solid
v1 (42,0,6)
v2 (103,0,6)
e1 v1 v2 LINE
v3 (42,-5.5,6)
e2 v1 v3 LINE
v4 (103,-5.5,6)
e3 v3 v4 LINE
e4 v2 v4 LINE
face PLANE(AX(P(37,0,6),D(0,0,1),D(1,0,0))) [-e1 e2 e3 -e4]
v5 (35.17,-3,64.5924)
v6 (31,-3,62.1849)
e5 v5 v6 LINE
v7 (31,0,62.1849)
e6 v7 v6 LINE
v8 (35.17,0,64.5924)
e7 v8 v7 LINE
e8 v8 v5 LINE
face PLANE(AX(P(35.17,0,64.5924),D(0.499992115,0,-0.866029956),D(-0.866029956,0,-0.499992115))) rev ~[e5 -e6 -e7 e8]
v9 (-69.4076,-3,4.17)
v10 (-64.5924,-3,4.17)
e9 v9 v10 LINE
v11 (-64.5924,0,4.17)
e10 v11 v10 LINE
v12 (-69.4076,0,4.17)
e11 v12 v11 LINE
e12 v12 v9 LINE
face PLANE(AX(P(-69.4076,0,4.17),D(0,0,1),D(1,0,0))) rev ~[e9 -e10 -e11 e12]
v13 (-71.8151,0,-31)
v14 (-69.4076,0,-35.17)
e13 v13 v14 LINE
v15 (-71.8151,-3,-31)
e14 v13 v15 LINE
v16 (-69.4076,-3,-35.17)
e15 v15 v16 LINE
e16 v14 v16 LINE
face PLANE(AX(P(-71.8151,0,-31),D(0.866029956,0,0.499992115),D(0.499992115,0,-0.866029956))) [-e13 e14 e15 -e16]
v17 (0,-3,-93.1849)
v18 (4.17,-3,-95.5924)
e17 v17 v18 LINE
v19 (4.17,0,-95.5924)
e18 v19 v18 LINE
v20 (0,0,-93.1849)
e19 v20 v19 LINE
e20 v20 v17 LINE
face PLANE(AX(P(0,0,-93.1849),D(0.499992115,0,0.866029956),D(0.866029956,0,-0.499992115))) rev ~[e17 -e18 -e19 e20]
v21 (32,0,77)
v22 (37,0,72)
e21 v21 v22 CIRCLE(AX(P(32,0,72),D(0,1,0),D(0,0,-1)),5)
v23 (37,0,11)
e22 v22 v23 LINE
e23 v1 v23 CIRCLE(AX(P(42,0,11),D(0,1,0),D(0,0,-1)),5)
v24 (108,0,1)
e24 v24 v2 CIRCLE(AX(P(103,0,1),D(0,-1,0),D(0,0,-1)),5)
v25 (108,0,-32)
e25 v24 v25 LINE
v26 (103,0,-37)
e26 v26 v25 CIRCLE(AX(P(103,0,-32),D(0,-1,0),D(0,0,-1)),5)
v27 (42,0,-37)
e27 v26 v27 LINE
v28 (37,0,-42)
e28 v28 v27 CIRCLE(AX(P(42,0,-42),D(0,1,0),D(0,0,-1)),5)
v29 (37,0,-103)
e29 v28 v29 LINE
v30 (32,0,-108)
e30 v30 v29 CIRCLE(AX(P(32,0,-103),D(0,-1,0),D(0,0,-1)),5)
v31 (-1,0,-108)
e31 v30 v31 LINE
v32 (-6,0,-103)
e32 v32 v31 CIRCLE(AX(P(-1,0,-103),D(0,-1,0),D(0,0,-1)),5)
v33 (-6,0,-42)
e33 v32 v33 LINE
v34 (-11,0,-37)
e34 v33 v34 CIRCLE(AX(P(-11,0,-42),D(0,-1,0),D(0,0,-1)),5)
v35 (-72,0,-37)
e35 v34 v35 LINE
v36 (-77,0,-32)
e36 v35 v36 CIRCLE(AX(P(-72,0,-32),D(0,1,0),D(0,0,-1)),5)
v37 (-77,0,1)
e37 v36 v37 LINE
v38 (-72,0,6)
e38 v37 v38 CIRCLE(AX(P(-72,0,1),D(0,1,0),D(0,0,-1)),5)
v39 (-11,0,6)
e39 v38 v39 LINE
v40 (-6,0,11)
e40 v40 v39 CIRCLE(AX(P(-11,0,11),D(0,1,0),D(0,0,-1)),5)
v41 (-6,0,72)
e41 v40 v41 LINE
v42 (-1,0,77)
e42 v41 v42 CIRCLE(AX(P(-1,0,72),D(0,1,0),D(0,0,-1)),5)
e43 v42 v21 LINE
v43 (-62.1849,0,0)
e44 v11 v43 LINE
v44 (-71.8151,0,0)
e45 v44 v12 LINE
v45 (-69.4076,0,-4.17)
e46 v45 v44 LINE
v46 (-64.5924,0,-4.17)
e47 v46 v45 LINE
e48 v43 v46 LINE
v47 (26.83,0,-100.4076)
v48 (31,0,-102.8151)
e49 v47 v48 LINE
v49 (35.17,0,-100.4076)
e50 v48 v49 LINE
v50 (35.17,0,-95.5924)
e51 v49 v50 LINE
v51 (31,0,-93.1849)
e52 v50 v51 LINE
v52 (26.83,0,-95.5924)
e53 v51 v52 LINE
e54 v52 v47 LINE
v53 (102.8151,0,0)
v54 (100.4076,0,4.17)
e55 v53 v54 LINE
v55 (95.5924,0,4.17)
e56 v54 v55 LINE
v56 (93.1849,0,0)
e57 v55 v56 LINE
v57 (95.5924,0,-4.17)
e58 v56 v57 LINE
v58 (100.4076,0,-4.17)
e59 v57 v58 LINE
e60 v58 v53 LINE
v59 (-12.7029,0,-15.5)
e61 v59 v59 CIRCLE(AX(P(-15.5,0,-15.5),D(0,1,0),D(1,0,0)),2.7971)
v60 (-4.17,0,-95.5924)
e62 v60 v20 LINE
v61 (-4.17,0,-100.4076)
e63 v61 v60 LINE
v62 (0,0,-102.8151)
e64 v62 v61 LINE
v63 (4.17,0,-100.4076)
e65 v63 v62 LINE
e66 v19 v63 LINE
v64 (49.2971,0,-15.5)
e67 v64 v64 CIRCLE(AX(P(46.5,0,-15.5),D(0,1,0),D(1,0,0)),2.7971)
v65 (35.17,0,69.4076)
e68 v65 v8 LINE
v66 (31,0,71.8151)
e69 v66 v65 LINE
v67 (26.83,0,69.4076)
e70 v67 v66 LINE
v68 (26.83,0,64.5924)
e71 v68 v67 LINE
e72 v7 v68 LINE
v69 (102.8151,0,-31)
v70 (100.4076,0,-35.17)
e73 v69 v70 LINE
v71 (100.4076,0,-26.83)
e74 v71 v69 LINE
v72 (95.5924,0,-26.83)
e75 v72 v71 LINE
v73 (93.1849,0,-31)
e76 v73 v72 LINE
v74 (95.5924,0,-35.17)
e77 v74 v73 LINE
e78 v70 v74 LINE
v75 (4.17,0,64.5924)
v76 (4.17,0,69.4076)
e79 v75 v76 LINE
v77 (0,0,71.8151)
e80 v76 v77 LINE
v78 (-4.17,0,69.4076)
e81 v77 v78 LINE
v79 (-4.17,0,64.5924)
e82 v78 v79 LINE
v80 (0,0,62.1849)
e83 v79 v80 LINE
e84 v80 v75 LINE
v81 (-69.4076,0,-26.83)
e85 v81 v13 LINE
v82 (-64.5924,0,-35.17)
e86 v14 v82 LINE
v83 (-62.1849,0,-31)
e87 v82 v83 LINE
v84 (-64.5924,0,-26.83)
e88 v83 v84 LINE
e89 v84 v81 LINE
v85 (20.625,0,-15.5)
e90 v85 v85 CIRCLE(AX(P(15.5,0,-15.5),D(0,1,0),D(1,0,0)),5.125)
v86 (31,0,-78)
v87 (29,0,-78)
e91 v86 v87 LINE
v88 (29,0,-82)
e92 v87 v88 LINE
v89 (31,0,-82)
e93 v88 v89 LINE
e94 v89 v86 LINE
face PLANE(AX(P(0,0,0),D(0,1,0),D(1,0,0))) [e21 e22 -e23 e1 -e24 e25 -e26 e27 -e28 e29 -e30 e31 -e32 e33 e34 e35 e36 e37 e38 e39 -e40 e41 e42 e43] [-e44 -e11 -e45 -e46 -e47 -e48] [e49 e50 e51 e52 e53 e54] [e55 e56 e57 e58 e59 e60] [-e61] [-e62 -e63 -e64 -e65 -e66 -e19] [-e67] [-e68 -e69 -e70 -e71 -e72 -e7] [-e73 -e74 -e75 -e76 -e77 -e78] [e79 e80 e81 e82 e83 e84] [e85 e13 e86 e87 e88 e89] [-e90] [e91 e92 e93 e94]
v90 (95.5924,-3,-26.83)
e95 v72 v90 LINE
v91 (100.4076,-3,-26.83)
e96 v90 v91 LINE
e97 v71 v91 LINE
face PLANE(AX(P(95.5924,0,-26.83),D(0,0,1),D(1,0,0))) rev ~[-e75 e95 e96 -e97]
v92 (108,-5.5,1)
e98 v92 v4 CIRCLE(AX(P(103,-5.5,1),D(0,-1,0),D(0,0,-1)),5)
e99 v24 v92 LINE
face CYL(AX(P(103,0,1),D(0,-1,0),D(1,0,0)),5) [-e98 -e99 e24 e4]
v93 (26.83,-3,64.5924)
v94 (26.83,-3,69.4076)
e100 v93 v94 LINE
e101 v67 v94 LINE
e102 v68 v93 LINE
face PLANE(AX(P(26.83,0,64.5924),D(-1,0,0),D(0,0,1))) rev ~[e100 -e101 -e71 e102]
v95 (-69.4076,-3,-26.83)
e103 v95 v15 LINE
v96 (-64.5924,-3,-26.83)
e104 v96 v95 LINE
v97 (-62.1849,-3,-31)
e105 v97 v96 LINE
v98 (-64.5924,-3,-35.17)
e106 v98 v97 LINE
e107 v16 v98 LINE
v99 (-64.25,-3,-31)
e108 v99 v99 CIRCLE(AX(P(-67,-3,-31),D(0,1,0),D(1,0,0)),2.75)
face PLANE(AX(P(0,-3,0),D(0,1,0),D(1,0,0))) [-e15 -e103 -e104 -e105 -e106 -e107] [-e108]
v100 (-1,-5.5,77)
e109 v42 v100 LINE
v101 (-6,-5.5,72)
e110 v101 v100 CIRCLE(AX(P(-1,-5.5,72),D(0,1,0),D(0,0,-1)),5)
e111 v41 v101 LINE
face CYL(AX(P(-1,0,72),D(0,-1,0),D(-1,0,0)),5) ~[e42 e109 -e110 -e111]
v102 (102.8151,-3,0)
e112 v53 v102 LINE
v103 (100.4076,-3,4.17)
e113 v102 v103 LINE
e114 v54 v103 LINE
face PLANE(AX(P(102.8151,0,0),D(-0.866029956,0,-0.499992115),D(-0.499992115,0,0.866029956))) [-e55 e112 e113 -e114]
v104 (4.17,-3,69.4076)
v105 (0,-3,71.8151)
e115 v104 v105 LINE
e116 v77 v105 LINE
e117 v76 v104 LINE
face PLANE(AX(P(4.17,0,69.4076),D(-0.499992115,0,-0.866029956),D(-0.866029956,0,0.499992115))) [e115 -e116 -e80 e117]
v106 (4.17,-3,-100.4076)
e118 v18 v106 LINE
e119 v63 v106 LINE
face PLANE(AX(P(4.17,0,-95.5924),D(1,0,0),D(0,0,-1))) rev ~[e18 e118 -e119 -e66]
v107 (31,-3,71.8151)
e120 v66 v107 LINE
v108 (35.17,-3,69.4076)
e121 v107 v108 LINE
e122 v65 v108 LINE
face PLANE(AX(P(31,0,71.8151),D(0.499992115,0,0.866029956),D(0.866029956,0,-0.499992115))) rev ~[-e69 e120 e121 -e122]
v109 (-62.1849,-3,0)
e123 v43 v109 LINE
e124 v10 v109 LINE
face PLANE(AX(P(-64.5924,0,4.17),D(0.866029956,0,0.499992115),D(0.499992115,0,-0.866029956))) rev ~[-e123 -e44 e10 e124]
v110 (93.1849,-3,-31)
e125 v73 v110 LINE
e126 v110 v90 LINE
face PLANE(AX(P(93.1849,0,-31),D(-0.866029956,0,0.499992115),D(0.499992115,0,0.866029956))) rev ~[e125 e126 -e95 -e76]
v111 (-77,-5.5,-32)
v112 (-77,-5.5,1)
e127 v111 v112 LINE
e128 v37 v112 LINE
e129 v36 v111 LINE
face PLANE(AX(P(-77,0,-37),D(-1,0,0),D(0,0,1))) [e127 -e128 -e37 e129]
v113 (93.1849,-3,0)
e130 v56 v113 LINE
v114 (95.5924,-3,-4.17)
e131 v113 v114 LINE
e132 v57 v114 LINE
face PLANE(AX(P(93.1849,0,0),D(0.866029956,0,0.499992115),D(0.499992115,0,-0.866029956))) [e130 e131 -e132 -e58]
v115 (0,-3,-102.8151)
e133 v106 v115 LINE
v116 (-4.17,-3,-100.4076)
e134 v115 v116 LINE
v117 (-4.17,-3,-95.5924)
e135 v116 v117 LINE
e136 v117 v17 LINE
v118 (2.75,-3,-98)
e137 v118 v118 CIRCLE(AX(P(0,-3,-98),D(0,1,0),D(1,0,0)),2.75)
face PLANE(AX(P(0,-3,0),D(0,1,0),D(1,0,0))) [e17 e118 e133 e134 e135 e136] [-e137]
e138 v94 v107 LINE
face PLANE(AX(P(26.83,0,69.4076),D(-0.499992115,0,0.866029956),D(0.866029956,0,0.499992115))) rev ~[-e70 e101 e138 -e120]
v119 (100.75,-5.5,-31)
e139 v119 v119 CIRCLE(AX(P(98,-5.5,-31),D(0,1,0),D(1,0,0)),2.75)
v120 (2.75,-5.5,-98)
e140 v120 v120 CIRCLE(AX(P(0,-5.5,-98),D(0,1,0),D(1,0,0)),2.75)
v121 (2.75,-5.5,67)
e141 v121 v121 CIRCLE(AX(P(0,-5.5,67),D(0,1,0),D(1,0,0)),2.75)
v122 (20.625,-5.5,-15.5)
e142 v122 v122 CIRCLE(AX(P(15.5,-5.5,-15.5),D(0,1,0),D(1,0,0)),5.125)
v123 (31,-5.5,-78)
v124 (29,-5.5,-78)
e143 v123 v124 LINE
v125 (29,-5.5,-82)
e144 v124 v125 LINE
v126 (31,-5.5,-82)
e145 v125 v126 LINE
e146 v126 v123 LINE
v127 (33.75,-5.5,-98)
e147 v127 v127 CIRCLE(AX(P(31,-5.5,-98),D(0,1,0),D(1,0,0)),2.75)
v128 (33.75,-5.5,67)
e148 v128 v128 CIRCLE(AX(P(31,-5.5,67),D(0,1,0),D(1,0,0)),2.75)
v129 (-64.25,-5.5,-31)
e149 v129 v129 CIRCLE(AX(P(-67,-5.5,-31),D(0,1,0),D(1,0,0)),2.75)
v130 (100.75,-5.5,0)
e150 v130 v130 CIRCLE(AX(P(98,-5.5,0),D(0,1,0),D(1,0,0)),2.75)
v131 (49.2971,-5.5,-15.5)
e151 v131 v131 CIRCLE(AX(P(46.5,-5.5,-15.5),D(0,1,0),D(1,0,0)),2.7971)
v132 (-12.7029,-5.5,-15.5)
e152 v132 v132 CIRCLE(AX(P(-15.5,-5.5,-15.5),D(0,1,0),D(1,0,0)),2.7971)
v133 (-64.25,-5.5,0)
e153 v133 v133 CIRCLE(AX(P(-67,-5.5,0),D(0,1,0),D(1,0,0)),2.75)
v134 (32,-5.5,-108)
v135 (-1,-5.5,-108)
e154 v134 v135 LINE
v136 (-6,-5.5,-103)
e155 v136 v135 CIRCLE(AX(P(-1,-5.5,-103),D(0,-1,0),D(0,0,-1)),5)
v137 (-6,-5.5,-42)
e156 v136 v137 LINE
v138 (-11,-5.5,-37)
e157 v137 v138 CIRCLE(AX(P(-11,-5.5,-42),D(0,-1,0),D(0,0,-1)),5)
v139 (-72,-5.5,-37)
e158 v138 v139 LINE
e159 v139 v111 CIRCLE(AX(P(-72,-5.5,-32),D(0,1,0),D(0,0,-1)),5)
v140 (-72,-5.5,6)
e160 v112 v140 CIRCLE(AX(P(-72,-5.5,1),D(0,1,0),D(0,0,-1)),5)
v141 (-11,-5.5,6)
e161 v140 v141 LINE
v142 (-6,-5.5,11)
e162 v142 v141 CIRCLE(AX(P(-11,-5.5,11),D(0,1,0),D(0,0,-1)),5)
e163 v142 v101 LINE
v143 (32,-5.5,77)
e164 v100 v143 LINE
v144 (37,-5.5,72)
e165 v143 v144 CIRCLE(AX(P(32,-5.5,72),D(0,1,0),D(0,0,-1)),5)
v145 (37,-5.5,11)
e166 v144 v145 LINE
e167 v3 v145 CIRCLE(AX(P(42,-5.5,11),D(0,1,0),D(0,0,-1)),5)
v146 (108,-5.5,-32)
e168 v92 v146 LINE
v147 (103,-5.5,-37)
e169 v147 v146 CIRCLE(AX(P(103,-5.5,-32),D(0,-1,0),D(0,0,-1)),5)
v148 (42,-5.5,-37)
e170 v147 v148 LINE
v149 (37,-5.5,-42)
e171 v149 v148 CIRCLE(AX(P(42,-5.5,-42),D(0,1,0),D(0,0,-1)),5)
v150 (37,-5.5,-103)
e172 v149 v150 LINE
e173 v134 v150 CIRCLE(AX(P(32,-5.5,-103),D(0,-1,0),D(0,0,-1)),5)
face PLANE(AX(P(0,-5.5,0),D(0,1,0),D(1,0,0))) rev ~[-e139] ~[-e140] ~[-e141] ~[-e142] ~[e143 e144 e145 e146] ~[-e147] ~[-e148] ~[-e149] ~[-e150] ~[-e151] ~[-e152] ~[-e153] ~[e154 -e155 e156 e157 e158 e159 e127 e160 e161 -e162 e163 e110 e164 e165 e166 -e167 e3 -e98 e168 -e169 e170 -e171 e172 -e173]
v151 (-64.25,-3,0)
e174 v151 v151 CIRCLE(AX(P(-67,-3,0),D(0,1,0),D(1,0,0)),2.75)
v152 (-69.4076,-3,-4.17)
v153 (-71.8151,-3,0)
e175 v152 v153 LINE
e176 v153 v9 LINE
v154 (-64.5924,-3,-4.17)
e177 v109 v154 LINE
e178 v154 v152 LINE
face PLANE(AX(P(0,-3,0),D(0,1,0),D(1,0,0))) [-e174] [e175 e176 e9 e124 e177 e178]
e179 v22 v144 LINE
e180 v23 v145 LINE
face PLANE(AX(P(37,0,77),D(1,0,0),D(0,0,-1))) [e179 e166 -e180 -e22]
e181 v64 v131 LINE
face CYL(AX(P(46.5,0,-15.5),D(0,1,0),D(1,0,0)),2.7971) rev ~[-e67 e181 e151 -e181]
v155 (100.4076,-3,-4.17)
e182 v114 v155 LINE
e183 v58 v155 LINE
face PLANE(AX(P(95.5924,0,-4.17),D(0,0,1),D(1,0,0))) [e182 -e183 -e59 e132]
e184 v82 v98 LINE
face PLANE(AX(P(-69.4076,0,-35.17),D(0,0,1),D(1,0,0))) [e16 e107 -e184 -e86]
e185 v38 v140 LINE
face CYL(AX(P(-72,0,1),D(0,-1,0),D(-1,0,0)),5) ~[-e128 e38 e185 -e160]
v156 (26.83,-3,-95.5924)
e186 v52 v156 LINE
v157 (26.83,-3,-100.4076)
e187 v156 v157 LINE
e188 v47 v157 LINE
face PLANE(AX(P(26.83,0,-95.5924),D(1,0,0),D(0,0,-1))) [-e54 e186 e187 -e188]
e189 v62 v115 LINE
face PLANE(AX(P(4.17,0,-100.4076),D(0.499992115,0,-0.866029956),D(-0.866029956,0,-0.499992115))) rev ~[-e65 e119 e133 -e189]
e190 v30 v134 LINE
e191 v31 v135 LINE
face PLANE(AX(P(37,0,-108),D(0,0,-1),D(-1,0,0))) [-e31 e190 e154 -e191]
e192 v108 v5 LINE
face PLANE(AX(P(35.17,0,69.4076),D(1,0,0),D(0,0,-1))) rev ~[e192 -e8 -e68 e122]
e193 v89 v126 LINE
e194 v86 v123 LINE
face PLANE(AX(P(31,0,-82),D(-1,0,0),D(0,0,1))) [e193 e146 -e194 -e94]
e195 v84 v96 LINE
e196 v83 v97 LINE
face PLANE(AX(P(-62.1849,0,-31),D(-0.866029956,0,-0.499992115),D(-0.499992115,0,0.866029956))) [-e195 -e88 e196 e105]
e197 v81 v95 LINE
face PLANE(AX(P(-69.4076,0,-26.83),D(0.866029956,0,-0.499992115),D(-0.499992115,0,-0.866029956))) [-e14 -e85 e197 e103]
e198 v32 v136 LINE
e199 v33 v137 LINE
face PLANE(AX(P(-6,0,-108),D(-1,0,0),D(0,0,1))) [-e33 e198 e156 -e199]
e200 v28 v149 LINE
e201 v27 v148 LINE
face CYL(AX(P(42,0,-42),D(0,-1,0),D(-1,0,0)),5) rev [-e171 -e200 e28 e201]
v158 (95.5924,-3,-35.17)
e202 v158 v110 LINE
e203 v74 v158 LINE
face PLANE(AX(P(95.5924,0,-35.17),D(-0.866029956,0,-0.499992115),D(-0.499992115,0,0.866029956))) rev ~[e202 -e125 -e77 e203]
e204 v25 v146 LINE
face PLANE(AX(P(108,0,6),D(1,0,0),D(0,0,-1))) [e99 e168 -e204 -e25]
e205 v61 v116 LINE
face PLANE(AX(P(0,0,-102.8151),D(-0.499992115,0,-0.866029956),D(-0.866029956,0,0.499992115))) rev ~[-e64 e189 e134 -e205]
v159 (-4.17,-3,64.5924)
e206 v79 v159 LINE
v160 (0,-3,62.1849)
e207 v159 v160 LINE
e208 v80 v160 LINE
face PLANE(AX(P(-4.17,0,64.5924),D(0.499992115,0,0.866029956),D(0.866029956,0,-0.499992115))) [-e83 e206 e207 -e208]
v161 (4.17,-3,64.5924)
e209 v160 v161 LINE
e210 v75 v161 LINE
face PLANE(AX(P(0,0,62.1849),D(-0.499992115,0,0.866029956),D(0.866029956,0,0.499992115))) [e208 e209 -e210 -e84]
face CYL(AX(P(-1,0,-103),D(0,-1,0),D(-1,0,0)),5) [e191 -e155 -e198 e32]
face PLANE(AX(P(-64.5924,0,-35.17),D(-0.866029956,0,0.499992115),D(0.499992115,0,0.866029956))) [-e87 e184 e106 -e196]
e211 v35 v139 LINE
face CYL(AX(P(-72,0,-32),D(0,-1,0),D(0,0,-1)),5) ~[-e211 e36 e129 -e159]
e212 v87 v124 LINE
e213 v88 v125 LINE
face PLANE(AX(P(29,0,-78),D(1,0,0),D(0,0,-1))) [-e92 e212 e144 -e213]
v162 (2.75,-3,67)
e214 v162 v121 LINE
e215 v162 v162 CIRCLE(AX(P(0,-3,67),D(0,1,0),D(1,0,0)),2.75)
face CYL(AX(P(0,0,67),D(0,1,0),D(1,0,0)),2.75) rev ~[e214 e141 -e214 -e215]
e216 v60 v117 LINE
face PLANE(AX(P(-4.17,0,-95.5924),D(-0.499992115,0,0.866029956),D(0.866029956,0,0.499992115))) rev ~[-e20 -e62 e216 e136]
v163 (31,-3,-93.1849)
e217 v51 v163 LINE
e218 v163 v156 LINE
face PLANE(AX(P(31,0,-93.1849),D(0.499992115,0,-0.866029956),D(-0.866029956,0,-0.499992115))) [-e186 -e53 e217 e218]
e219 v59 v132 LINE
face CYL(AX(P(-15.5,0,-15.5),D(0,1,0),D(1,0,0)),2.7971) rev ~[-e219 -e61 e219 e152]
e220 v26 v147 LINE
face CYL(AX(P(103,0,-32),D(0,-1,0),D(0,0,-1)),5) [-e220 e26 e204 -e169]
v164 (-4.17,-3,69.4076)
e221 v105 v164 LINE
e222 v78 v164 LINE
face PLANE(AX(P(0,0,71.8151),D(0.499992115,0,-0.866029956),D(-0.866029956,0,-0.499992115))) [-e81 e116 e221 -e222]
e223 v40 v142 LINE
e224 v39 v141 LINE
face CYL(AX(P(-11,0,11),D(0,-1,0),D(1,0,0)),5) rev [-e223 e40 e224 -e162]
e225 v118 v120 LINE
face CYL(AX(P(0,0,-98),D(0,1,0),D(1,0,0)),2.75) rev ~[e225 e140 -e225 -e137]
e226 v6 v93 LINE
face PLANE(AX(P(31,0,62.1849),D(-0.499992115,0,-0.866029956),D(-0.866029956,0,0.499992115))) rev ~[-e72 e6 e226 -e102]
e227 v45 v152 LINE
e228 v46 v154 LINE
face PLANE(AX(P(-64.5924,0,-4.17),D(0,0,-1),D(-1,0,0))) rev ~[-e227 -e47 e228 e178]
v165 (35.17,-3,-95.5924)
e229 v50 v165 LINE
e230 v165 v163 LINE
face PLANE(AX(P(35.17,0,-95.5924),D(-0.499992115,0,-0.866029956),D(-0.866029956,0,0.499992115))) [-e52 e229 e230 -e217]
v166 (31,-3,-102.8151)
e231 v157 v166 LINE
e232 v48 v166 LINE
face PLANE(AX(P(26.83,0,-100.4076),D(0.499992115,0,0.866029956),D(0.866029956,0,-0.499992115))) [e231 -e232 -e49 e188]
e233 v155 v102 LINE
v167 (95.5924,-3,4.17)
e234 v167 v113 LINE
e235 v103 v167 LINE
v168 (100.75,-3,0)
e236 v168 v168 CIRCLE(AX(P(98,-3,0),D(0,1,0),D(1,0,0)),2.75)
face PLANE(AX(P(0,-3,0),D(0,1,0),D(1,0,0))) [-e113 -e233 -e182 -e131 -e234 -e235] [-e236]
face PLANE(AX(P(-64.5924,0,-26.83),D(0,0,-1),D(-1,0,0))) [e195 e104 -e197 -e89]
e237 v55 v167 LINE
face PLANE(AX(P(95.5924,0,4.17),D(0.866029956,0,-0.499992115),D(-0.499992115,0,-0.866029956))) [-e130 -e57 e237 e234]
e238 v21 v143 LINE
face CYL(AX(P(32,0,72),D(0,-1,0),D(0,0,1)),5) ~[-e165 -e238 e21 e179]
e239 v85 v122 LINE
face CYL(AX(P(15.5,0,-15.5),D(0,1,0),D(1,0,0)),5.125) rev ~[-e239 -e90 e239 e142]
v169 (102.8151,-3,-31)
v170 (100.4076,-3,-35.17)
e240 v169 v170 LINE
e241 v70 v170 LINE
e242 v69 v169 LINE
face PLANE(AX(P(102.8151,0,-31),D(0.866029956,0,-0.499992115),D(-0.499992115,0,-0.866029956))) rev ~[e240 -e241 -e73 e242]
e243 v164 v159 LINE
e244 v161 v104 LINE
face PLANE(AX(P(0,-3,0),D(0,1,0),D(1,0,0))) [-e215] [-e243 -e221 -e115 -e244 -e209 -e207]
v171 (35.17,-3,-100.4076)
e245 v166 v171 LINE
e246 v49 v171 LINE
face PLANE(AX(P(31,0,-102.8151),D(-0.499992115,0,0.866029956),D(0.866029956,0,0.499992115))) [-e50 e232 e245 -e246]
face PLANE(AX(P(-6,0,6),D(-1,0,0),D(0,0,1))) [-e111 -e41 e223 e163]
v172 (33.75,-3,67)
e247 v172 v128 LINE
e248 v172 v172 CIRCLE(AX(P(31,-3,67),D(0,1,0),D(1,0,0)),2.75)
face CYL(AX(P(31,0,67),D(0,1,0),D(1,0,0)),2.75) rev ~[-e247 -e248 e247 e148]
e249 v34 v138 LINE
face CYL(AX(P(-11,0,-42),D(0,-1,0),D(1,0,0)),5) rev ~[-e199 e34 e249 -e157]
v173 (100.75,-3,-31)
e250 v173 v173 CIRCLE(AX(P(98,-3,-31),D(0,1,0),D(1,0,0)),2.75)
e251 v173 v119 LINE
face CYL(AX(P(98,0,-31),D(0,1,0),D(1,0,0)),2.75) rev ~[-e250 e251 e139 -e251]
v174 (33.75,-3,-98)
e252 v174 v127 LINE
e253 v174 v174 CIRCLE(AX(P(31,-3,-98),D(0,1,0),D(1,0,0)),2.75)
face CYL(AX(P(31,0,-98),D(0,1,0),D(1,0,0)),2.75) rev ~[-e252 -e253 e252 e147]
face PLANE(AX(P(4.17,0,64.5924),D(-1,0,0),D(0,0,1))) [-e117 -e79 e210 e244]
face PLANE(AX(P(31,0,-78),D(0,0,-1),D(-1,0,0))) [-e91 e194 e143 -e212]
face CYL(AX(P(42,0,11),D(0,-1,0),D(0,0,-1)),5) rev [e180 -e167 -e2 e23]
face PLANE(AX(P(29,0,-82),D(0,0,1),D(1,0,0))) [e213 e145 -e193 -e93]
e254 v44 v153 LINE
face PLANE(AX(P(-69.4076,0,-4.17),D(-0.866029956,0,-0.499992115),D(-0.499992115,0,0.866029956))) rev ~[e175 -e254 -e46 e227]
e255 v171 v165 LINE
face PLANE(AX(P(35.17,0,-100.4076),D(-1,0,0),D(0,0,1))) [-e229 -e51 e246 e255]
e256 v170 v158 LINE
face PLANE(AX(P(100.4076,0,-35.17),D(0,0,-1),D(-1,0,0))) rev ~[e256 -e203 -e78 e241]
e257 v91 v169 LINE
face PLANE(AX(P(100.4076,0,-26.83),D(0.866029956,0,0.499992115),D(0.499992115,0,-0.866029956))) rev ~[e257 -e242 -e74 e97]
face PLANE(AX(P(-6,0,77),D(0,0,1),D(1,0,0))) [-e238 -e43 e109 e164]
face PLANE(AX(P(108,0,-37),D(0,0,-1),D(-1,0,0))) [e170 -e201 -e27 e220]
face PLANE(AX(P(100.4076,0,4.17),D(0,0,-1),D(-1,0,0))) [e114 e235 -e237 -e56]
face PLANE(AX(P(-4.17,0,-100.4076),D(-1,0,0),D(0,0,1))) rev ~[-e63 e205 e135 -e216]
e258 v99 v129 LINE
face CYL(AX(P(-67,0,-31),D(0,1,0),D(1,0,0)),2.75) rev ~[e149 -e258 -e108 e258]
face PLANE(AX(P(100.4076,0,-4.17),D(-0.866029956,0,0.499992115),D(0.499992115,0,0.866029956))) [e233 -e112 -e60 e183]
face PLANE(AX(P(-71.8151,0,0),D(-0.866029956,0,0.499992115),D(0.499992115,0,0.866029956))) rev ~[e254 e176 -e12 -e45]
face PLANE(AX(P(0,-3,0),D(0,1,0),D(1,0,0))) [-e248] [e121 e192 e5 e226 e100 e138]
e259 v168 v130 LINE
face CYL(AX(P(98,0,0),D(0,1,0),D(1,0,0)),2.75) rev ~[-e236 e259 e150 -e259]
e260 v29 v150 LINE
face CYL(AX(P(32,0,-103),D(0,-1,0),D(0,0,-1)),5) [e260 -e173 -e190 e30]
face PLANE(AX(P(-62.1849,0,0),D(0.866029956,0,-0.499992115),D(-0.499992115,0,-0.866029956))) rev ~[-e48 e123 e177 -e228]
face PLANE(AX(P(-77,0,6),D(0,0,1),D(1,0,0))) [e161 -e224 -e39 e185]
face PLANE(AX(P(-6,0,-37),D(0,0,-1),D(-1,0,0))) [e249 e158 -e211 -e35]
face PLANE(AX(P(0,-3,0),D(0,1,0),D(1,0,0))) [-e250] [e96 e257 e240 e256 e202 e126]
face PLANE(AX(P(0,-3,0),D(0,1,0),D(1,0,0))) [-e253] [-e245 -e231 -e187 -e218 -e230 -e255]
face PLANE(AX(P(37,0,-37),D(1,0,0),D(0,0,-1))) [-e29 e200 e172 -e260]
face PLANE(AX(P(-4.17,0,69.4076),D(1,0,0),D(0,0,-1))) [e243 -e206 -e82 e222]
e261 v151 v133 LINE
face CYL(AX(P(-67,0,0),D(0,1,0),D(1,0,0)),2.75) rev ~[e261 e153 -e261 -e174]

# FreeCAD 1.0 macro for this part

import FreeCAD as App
import Part
import Sketcher
from FreeCAD import Vector
Q = App.Units.Quantity


def edges_at(feature, points):
    """Names of the edges that pass closest to the given points."""
    edges = feature.Shape.Edges
    near = lambda p: min(range(len(edges)), key=lambda i: edges[i].distToShape(Part.Vertex(*p))[0])
    return sorted({f"Edge{near(p) + 1}" for p in points})

doc = App.newDocument("Part")
body = doc.addObject("PartDesign::Body", "Body")

# Sketch on XZ plane
sketch1 = body.newObject("Sketcher::SketchObject", "Sketch")
sketch1.AttachmentSupport = (doc.getObject("XZ_Plane"), [""])
sketch1.MapMode = "FlatFace"
sketch1.addGeometry(Part.LineSegment(Vector(-6, -108, 0), Vector(-6, -37, 0)), False)
sketch1.addGeometry(Part.LineSegment(Vector(-6, -37, 0), Vector(-77, -37, 0)), False)
sketch1.addGeometry(Part.LineSegment(Vector(-77, -37, 0), Vector(-77, 6, 0)), False)
sketch1.addGeometry(Part.LineSegment(Vector(-77, 6, 0), Vector(-6, 6, 0)), False)
sketch1.addGeometry(Part.LineSegment(Vector(-6, 6, 0), Vector(-6, 77, 0)), False)
sketch1.addGeometry(Part.LineSegment(Vector(-6, 77, 0), Vector(37, 77, 0)), False)
sketch1.addGeometry(Part.LineSegment(Vector(37, 77, 0), Vector(37, 6, 0)), False)
sketch1.addGeometry(Part.LineSegment(Vector(37, 6, 0), Vector(108, 6, 0)), False)
sketch1.addGeometry(Part.LineSegment(Vector(108, 6, 0), Vector(108, -37, 0)), False)
sketch1.addGeometry(Part.LineSegment(Vector(108, -37, 0), Vector(37, -37, 0)), False)
sketch1.addGeometry(Part.LineSegment(Vector(37, -37, 0), Vector(37, -108, 0)), False)
sketch1.addGeometry(Part.LineSegment(Vector(37, -108, 0), Vector(-6, -108, 0)), False)
sketch1.addGeometry(Part.Circle(Vector(15.5, -15.5, 0), Vector(0, 0, 1), 5.1), False)
sketch1.addGeometry(Part.Circle(Vector(46.5, -15.5, 0), Vector(0, 0, 1), 2.8), False)
sketch1.addGeometry(Part.Circle(Vector(-15.5, -15.5, 0), Vector(0, 0, 1), 2.8), False)
sketch1.addGeometry(Part.Circle(Vector(31, -98, 0), Vector(0, 0, 1), 2.8), False)
sketch1.addGeometry(Part.Circle(Vector(0, -98, 0), Vector(0, 0, 1), 2.8), False)
sketch1.addGeometry(Part.Circle(Vector(98, -31, 0), Vector(0, 0, 1), 2.8), False)
sketch1.addGeometry(Part.Circle(Vector(98, 0, 0), Vector(0, 0, 1), 2.8), False)
sketch1.addGeometry(Part.Circle(Vector(31, 67, 0), Vector(0, 0, 1), 2.8), False)
sketch1.addGeometry(Part.Circle(Vector(0, 67, 0), Vector(0, 0, 1), 2.8), False)
sketch1.addGeometry(Part.Circle(Vector(-67, 0, 0), Vector(0, 0, 1), 2.8), False)
sketch1.addGeometry(Part.Circle(Vector(-67, -31, 0), Vector(0, 0, 1), 2.8), False)
sketch1.addConstraint(Sketcher.Constraint("Coincident", 0, 2, 1, 1))
sketch1.addConstraint(Sketcher.Constraint("Coincident", 1, 2, 2, 1))
sketch1.addConstraint(Sketcher.Constraint("Coincident", 2, 2, 3, 1))
sketch1.addConstraint(Sketcher.Constraint("Coincident", 3, 2, 4, 1))
sketch1.addConstraint(Sketcher.Constraint("Coincident", 4, 2, 5, 1))
sketch1.addConstraint(Sketcher.Constraint("Coincident", 5, 2, 6, 1))
sketch1.addConstraint(Sketcher.Constraint("Coincident", 6, 2, 7, 1))
sketch1.addConstraint(Sketcher.Constraint("Coincident", 7, 2, 8, 1))
sketch1.addConstraint(Sketcher.Constraint("Coincident", 8, 2, 9, 1))
sketch1.addConstraint(Sketcher.Constraint("Coincident", 9, 2, 10, 1))
sketch1.addConstraint(Sketcher.Constraint("Coincident", 10, 2, 11, 1))
sketch1.addConstraint(Sketcher.Constraint("Coincident", 11, 2, 0, 1))
sketch1.addConstraint(Sketcher.Constraint("Vertical", 0))
sketch1.addConstraint(Sketcher.Constraint("Horizontal", 1))
sketch1.addConstraint(Sketcher.Constraint("Vertical", 2))
sketch1.addConstraint(Sketcher.Constraint("Horizontal", 3))
sketch1.addConstraint(Sketcher.Constraint("Vertical", 4))
sketch1.addConstraint(Sketcher.Constraint("Horizontal", 5))
sketch1.addConstraint(Sketcher.Constraint("Vertical", 6))
sketch1.addConstraint(Sketcher.Constraint("Horizontal", 7))
sketch1.addConstraint(Sketcher.Constraint("Vertical", 8))
sketch1.addConstraint(Sketcher.Constraint("Horizontal", 9))
sketch1.addConstraint(Sketcher.Constraint("Vertical", 10))
sketch1.addConstraint(Sketcher.Constraint("Horizontal", 11))
sketch1.addConstraint(Sketcher.Constraint("Equal", 13, 14))
sketch1.addConstraint(Sketcher.Constraint("Equal", 15, 16))
sketch1.addConstraint(Sketcher.Constraint("Equal", 16, 17))
sketch1.addConstraint(Sketcher.Constraint("Equal", 17, 18))
sketch1.addConstraint(Sketcher.Constraint("Equal", 18, 19))
sketch1.addConstraint(Sketcher.Constraint("Equal", 19, 20))
sketch1.addConstraint(Sketcher.Constraint("Equal", 20, 21))
sketch1.addConstraint(Sketcher.Constraint("Equal", 21, 22))
sketch1.addConstraint(Sketcher.Constraint("Symmetric", 12, 3, 14, 3, -2))
sketch1.addConstraint(Sketcher.Constraint("PointOnObject", 16, 3, -2))
sketch1.addConstraint(Sketcher.Constraint("PointOnObject", 18, 3, -1))
sketch1.addConstraint(Sketcher.Constraint("PointOnObject", 20, 3, -2))
sketch1.addConstraint(Sketcher.Constraint("PointOnObject", 21, 3, -1))
sketch1.addConstraint(Sketcher.Constraint("Horizontal", 12, 3, 13, 3))
sketch1.addConstraint(Sketcher.Constraint("Horizontal", 15, 3, 16, 3))
sketch1.addConstraint(Sketcher.Constraint("Horizontal", 19, 3, 20, 3))
sketch1.addConstraint(Sketcher.Constraint("Horizontal", 17, 3, 22, 3))
sketch1.addConstraint(Sketcher.Constraint("Horizontal", 3, 2, 6, 2))
sketch1.addConstraint(Sketcher.Constraint("Horizontal", 1, 2, 8, 2))
sketch1.addConstraint(Sketcher.Constraint("Vertical", 17, 3, 18, 3))
sketch1.addConstraint(Sketcher.Constraint("Vertical", 15, 3, 19, 3))
sketch1.addConstraint(Sketcher.Constraint("Vertical", 21, 3, 22, 3))
sketch1.addConstraint(Sketcher.Constraint("Vertical", 0, 2, 3, 2))
sketch1.addConstraint(Sketcher.Constraint("Vertical", 6, 2, 9, 2))
sketch1.addConstraint(Sketcher.Constraint("Equal", 3, 7))
sketch1.addConstraint(Sketcher.Constraint("Equal", 9, 0))
sketch1.addConstraint(Sketcher.Constraint("Equal", 11, 2))
sketch1.addConstraint(Sketcher.Constraint("Equal", 0, 4))
sketch1.addConstraint(Sketcher.Constraint("Diameter", 15, 5.5))
sketch1.addConstraint(Sketcher.Constraint("Diameter", 12, 10.25))
sketch1.addConstraint(Sketcher.Constraint("DistanceX", 5, 1, 5, 2, 43.0))
sketch1.addConstraint(Sketcher.Constraint("DistanceX", -1, 1, 15, 3, 31.0))
sketch1.addConstraint(Sketcher.Constraint("DistanceY", 17, 3, -1, 1, 31.0))
sketch1.addConstraint(Sketcher.Constraint("DistanceX", 0, 2, -1, 1, 6.0))
sketch1.addConstraint(Sketcher.Constraint("DistanceY", -1, 1, 2, 2, 6.0))
sketch1.addConstraint(Sketcher.Constraint("DistanceX", 12, 3, 13, 3, 31.0))
sketch1.addConstraint(Sketcher.Constraint("DistanceX", 14, 3, 12, 3, 31.0))
sketch1.addConstraint(Sketcher.Constraint("DistanceX", 1, 2, 22, 3, 10.0))
sketch1.addConstraint(Sketcher.Constraint("DistanceY", 20, 3, 4, 2, 10.0))
sketch1.addConstraint(Sketcher.Constraint("DistanceX", 18, 3, 7, 2, 10.0))
sketch1.addConstraint(Sketcher.Constraint("DistanceY", 10, 2, 15, 3, 10.0))
sketch1.addConstraint(Sketcher.Constraint("DistanceY", 15, 3, 12, 3, 82.5))
sketch1.addConstraint(Sketcher.Constraint("DistanceX", 12, 3, 17, 3, 82.5))
sketch1.addConstraint(Sketcher.Constraint("Diameter", 13, 5.5942))
pad1 = body.newObject("PartDesign::Pad", "Pad")
pad1.Profile = sketch1
pad1.Length = 5.5
doc.recompute()

fillet = body.newObject("PartDesign::Fillet", "Fillet")
fillet.Base = (pad1, edges_at(pad1, [
    (-6, -2.75, -37),
    (-6, -2.75, 6),
    (37, -2.75, 6),
    (37, -2.75, -37),
]))
fillet.Radius = 5
doc.recompute()

fillet2 = body.newObject("PartDesign::Fillet", "Fillet001")
fillet2.Base = (fillet, edges_at(fillet, [
    (37, -2.75, -108),
    (-6, -2.75, -108),
    (108, -2.75, 6),
    (108, -2.75, -37),
    (37, -2.75, 77),
    (-6, -2.75, 77),
    (-77, -2.75, 6),
    (-77, -2.75, -37),
]))
fillet2.Radius = 5

# Sketch on XZ plane
sketch2 = body.newObject("Sketcher::SketchObject", "Sketch001")
sketch2.AttachmentSupport = (doc.getObject("XZ_Plane"), [""])
sketch2.MapMode = "FlatFace"
sketch2.addGeometry(Part.LineSegment(Vector(4.2, -95.6, 0), Vector(4.2, -100.4, 0)), False)
sketch2.addGeometry(Part.LineSegment(Vector(4.2, -100.4, 0), Vector(0, -102.8, 0)), False)
sketch2.addGeometry(Part.LineSegment(Vector(0, -102.8, 0), Vector(-4.2, -100.4, 0)), False)
sketch2.addGeometry(Part.LineSegment(Vector(-4.2, -100.4, 0), Vector(-4.2, -95.6, 0)), False)
sketch2.addGeometry(Part.LineSegment(Vector(-4.2, -95.6, 0), Vector(0, -93.2, 0)), False)
sketch2.addGeometry(Part.LineSegment(Vector(0, -93.2, 0), Vector(4.2, -95.6, 0)), False)
sketch2.addGeometry(Part.LineSegment(Vector(31, -102.8, 0), Vector(26.8, -100.4, 0)), False)
sketch2.addGeometry(Part.LineSegment(Vector(26.8, -100.4, 0), Vector(26.8, -95.6, 0)), False)
sketch2.addGeometry(Part.LineSegment(Vector(26.8, -95.6, 0), Vector(31, -93.2, 0)), False)
sketch2.addGeometry(Part.LineSegment(Vector(31, -93.2, 0), Vector(35.2, -95.6, 0)), False)
sketch2.addGeometry(Part.LineSegment(Vector(35.2, -95.6, 0), Vector(35.2, -100.4, 0)), False)
sketch2.addGeometry(Part.LineSegment(Vector(35.2, -100.4, 0), Vector(31, -102.8, 0)), False)
sketch2.addGeometry(Part.LineSegment(Vector(-71.8, 0, 0), Vector(-69.4, 4.2, 0)), False)
sketch2.addGeometry(Part.LineSegment(Vector(-69.4, 4.2, 0), Vector(-64.6, 4.2, 0)), False)
sketch2.addGeometry(Part.LineSegment(Vector(-64.6, 4.2, 0), Vector(-62.2, 0, 0)), False)
sketch2.addGeometry(Part.LineSegment(Vector(-62.2, 0, 0), Vector(-64.6, -4.2, 0)), False)
sketch2.addGeometry(Part.LineSegment(Vector(-64.6, -4.2, 0), Vector(-69.4, -4.2, 0)), False)
sketch2.addGeometry(Part.LineSegment(Vector(-69.4, -4.2, 0), Vector(-71.8, 0, 0)), False)
sketch2.addGeometry(Part.LineSegment(Vector(-69.4, -26.8, 0), Vector(-64.6, -26.8, 0)), False)
sketch2.addGeometry(Part.LineSegment(Vector(-64.6, -26.8, 0), Vector(-62.2, -31, 0)), False)
sketch2.addGeometry(Part.LineSegment(Vector(-62.2, -31, 0), Vector(-64.6, -35.2, 0)), False)
sketch2.addGeometry(Part.LineSegment(Vector(-64.6, -35.2, 0), Vector(-69.4, -35.2, 0)), False)
sketch2.addGeometry(Part.LineSegment(Vector(-69.4, -35.2, 0), Vector(-71.8, -31, 0)), False)
sketch2.addGeometry(Part.LineSegment(Vector(-71.8, -31, 0), Vector(-69.4, -26.8, 0)), False)
sketch2.addGeometry(Part.LineSegment(Vector(31, 71.8, 0), Vector(35.2, 69.4, 0)), False)
sketch2.addGeometry(Part.LineSegment(Vector(35.2, 69.4, 0), Vector(35.2, 64.6, 0)), False)
sketch2.addGeometry(Part.LineSegment(Vector(35.2, 64.6, 0), Vector(31, 62.2, 0)), False)
sketch2.addGeometry(Part.LineSegment(Vector(31, 62.2, 0), Vector(26.8, 64.6, 0)), False)
sketch2.addGeometry(Part.LineSegment(Vector(26.8, 64.6, 0), Vector(26.8, 69.4, 0)), False)
sketch2.addGeometry(Part.LineSegment(Vector(26.8, 69.4, 0), Vector(31, 71.8, 0)), False)
sketch2.addGeometry(Part.LineSegment(Vector(4.2, 69.4, 0), Vector(4.2, 64.6, 0)), False)
sketch2.addGeometry(Part.LineSegment(Vector(4.2, 64.6, 0), Vector(0, 62.2, 0)), False)
sketch2.addGeometry(Part.LineSegment(Vector(0, 62.2, 0), Vector(-4.2, 64.6, 0)), False)
sketch2.addGeometry(Part.LineSegment(Vector(-4.2, 64.6, 0), Vector(-4.2, 69.4, 0)), False)
sketch2.addGeometry(Part.LineSegment(Vector(-4.2, 69.4, 0), Vector(0, 71.8, 0)), False)
sketch2.addGeometry(Part.LineSegment(Vector(0, 71.8, 0), Vector(4.2, 69.4, 0)), False)
sketch2.addGeometry(Part.LineSegment(Vector(102.8, -31, 0), Vector(100.4, -35.2, 0)), False)
sketch2.addGeometry(Part.LineSegment(Vector(100.4, -35.2, 0), Vector(95.6, -35.2, 0)), False)
sketch2.addGeometry(Part.LineSegment(Vector(95.6, -35.2, 0), Vector(93.2, -31, 0)), False)
sketch2.addGeometry(Part.LineSegment(Vector(93.2, -31, 0), Vector(95.6, -26.8, 0)), False)
sketch2.addGeometry(Part.LineSegment(Vector(95.6, -26.8, 0), Vector(100.4, -26.8, 0)), False)
sketch2.addGeometry(Part.LineSegment(Vector(100.4, -26.8, 0), Vector(102.8, -31, 0)), False)
sketch2.addGeometry(Part.LineSegment(Vector(100.4, -4.2, 0), Vector(95.6, -4.2, 0)), False)
sketch2.addGeometry(Part.LineSegment(Vector(95.6, -4.2, 0), Vector(93.2, 0, 0)), False)
sketch2.addGeometry(Part.LineSegment(Vector(93.2, 0, 0), Vector(95.6, 4.2, 0)), False)
sketch2.addGeometry(Part.LineSegment(Vector(95.6, 4.2, 0), Vector(100.4, 4.2, 0)), False)
sketch2.addGeometry(Part.LineSegment(Vector(100.4, 4.2, 0), Vector(102.8, 0, 0)), False)
sketch2.addGeometry(Part.LineSegment(Vector(102.8, 0, 0), Vector(100.4, -4.2, 0)), False)
sketch2.addConstraint(Sketcher.Constraint("Coincident", 0, 2, 1, 1))
sketch2.addConstraint(Sketcher.Constraint("Coincident", 1, 2, 2, 1))
sketch2.addConstraint(Sketcher.Constraint("Coincident", 2, 2, 3, 1))
sketch2.addConstraint(Sketcher.Constraint("Coincident", 3, 2, 4, 1))
sketch2.addConstraint(Sketcher.Constraint("Coincident", 4, 2, 5, 1))
sketch2.addConstraint(Sketcher.Constraint("Coincident", 5, 2, 0, 1))
sketch2.addConstraint(Sketcher.Constraint("Coincident", 6, 2, 7, 1))
sketch2.addConstraint(Sketcher.Constraint("Coincident", 7, 2, 8, 1))
sketch2.addConstraint(Sketcher.Constraint("Coincident", 8, 2, 9, 1))
sketch2.addConstraint(Sketcher.Constraint("Coincident", 9, 2, 10, 1))
sketch2.addConstraint(Sketcher.Constraint("Coincident", 10, 2, 11, 1))
sketch2.addConstraint(Sketcher.Constraint("Coincident", 11, 2, 6, 1))
sketch2.addConstraint(Sketcher.Constraint("Coincident", 12, 2, 13, 1))
sketch2.addConstraint(Sketcher.Constraint("Coincident", 13, 2, 14, 1))
sketch2.addConstraint(Sketcher.Constraint("Coincident", 14, 2, 15, 1))
sketch2.addConstraint(Sketcher.Constraint("Coincident", 15, 2, 16, 1))
sketch2.addConstraint(Sketcher.Constraint("Coincident", 16, 2, 17, 1))
sketch2.addConstraint(Sketcher.Constraint("Coincident", 17, 2, 12, 1))
sketch2.addConstraint(Sketcher.Constraint("Coincident", 18, 2, 19, 1))
sketch2.addConstraint(Sketcher.Constraint("Coincident", 19, 2, 20, 1))
sketch2.addConstraint(Sketcher.Constraint("Coincident", 20, 2, 21, 1))
sketch2.addConstraint(Sketcher.Constraint("Coincident", 21, 2, 22, 1))
sketch2.addConstraint(Sketcher.Constraint("Coincident", 22, 2, 23, 1))
sketch2.addConstraint(Sketcher.Constraint("Coincident", 23, 2, 18, 1))
sketch2.addConstraint(Sketcher.Constraint("Coincident", 24, 2, 25, 1))
sketch2.addConstraint(Sketcher.Constraint("Coincident", 25, 2, 26, 1))
sketch2.addConstraint(Sketcher.Constraint("Coincident", 26, 2, 27, 1))
sketch2.addConstraint(Sketcher.Constraint("Coincident", 27, 2, 28, 1))
sketch2.addConstraint(Sketcher.Constraint("Coincident", 28, 2, 29, 1))
sketch2.addConstraint(Sketcher.Constraint("Coincident", 29, 2, 24, 1))
sketch2.addConstraint(Sketcher.Constraint("Coincident", 30, 2, 31, 1))
sketch2.addConstraint(Sketcher.Constraint("Coincident", 31, 2, 32, 1))
sketch2.addConstraint(Sketcher.Constraint("Coincident", 32, 2, 33, 1))
sketch2.addConstraint(Sketcher.Constraint("Coincident", 33, 2, 34, 1))
sketch2.addConstraint(Sketcher.Constraint("Coincident", 34, 2, 35, 1))
sketch2.addConstraint(Sketcher.Constraint("Coincident", 35, 2, 30, 1))
sketch2.addConstraint(Sketcher.Constraint("Coincident", 36, 2, 37, 1))
sketch2.addConstraint(Sketcher.Constraint("Coincident", 37, 2, 38, 1))
sketch2.addConstraint(Sketcher.Constraint("Coincident", 38, 2, 39, 1))
sketch2.addConstraint(Sketcher.Constraint("Coincident", 39, 2, 40, 1))
sketch2.addConstraint(Sketcher.Constraint("Coincident", 40, 2, 41, 1))
sketch2.addConstraint(Sketcher.Constraint("Coincident", 41, 2, 36, 1))
sketch2.addConstraint(Sketcher.Constraint("Coincident", 42, 2, 43, 1))
sketch2.addConstraint(Sketcher.Constraint("Coincident", 43, 2, 44, 1))
sketch2.addConstraint(Sketcher.Constraint("Coincident", 44, 2, 45, 1))
sketch2.addConstraint(Sketcher.Constraint("Coincident", 45, 2, 46, 1))
sketch2.addConstraint(Sketcher.Constraint("Coincident", 46, 2, 47, 1))
sketch2.addConstraint(Sketcher.Constraint("Coincident", 47, 2, 42, 1))
sketch2.addConstraint(Sketcher.Constraint("Vertical", 0))
sketch2.addConstraint(Sketcher.Constraint("Vertical", 3))
sketch2.addConstraint(Sketcher.Constraint("Vertical", 7))
sketch2.addConstraint(Sketcher.Constraint("Vertical", 10))
sketch2.addConstraint(Sketcher.Constraint("Horizontal", 13))
sketch2.addConstraint(Sketcher.Constraint("Horizontal", 16))
sketch2.addConstraint(Sketcher.Constraint("Horizontal", 18))
sketch2.addConstraint(Sketcher.Constraint("Horizontal", 21))
sketch2.addConstraint(Sketcher.Constraint("Vertical", 25))
sketch2.addConstraint(Sketcher.Constraint("Vertical", 28))
sketch2.addConstraint(Sketcher.Constraint("Vertical", 30))
sketch2.addConstraint(Sketcher.Constraint("Vertical", 33))
sketch2.addConstraint(Sketcher.Constraint("Horizontal", 37))
sketch2.addConstraint(Sketcher.Constraint("Horizontal", 40))
sketch2.addConstraint(Sketcher.Constraint("Horizontal", 42))
sketch2.addConstraint(Sketcher.Constraint("Horizontal", 45))
sketch2.addConstraint(Sketcher.Constraint("Symmetric", 0, 2, 2, 2, -2))
sketch2.addConstraint(Sketcher.Constraint("Symmetric", 30, 2, 32, 2, -2))
sketch2.addConstraint(Sketcher.Constraint("Symmetric", 13, 2, 15, 2, -1))
sketch2.addConstraint(Sketcher.Constraint("Symmetric", 42, 2, 44, 2, -1))
sketch2.addConstraint(Sketcher.Constraint("PointOnObject", 1, 2, -2))
sketch2.addConstraint(Sketcher.Constraint("PointOnObject", 4, 2, -2))
sketch2.addConstraint(Sketcher.Constraint("PointOnObject", 14, 2, -1))
sketch2.addConstraint(Sketcher.Constraint("PointOnObject", 17, 2, -1))
sketch2.addConstraint(Sketcher.Constraint("PointOnObject", 31, 2, -2))
sketch2.addConstraint(Sketcher.Constraint("PointOnObject", 34, 2, -2))
sketch2.addConstraint(Sketcher.Constraint("PointOnObject", 43, 2, -1))
sketch2.addConstraint(Sketcher.Constraint("PointOnObject", 46, 2, -1))
sketch2.addConstraint(Sketcher.Constraint("Parallel", 1, 4))
sketch2.addConstraint(Sketcher.Constraint("Parallel", 2, 5))
sketch2.addConstraint(Sketcher.Constraint("Parallel", 5, 6))
sketch2.addConstraint(Sketcher.Constraint("Parallel", 4, 8))
sketch2.addConstraint(Sketcher.Constraint("Parallel", 6, 9))
sketch2.addConstraint(Sketcher.Constraint("Parallel", 8, 11))
sketch2.addConstraint(Sketcher.Constraint("Perpendicular", 9, 12))
sketch2.addConstraint(Sketcher.Constraint("Perpendicular", 11, 14))
sketch2.addConstraint(Sketcher.Constraint("Parallel", 14, 17))
sketch2.addConstraint(Sketcher.Constraint("Parallel", 17, 19))
sketch2.addConstraint(Sketcher.Constraint("Parallel", 15, 20))
sketch2.addConstraint(Sketcher.Constraint("Parallel", 19, 22))
sketch2.addConstraint(Sketcher.Constraint("Parallel", 20, 23))
sketch2.addConstraint(Sketcher.Constraint("Perpendicular", 23, 24))
sketch2.addConstraint(Sketcher.Constraint("Perpendicular", 22, 26))
sketch2.addConstraint(Sketcher.Constraint("Parallel", 24, 27))
sketch2.addConstraint(Sketcher.Constraint("Parallel", 26, 29))
sketch2.addConstraint(Sketcher.Constraint("Parallel", 29, 31))
sketch2.addConstraint(Sketcher.Constraint("Parallel", 31, 34))
sketch2.addConstraint(Sketcher.Constraint("Parallel", 32, 35))
sketch2.addConstraint(Sketcher.Constraint("Perpendicular", 35, 36))
sketch2.addConstraint(Sketcher.Constraint("Perpendicular", 34, 38))
sketch2.addConstraint(Sketcher.Constraint("Parallel", 36, 39))
sketch2.addConstraint(Sketcher.Constraint("Parallel", 38, 41))
sketch2.addConstraint(Sketcher.Constraint("Parallel", 41, 43))
sketch2.addConstraint(Sketcher.Constraint("Parallel", 43, 46))
sketch2.addConstraint(Sketcher.Constraint("Parallel", 44, 47))
sketch2.addConstraint(Sketcher.Constraint("Horizontal", 2, 2, 6, 2))
sketch2.addConstraint(Sketcher.Constraint("Horizontal", 5, 2, 7, 2))
sketch2.addConstraint(Sketcher.Constraint("Horizontal", 4, 2, 8, 2))
sketch2.addConstraint(Sketcher.Constraint("Horizontal", 7, 2, 9, 2))
sketch2.addConstraint(Sketcher.Constraint("Horizontal", 6, 2, 10, 2))
sketch2.addConstraint(Sketcher.Constraint("Horizontal", 19, 2, 22, 2))
sketch2.addConstraint(Sketcher.Constraint("Horizontal", 25, 2, 27, 2))
sketch2.addConstraint(Sketcher.Constraint("Horizontal", 24, 2, 28, 2))
sketch2.addConstraint(Sketcher.Constraint("Horizontal", 27, 2, 30, 2))
sketch2.addConstraint(Sketcher.Constraint("Horizontal", 26, 2, 31, 2))
sketch2.addConstraint(Sketcher.Constraint("Horizontal", 28, 2, 33, 2))
sketch2.addConstraint(Sketcher.Constraint("Horizontal", 21, 2, 36, 2))
sketch2.addConstraint(Sketcher.Constraint("Horizontal", 22, 2, 38, 2))
sketch2.addConstraint(Sketcher.Constraint("Horizontal", 23, 2, 39, 2))
sketch2.addConstraint(Sketcher.Constraint("Horizontal", 38, 2, 41, 2))
sketch2.addConstraint(Sketcher.Constraint("Horizontal", 16, 2, 42, 2))
sketch2.addConstraint(Sketcher.Constraint("Vertical", 15, 2, 18, 2))
sketch2.addConstraint(Sketcher.Constraint("Vertical", 14, 2, 19, 2))
sketch2.addConstraint(Sketcher.Constraint("Vertical", 18, 2, 20, 2))
sketch2.addConstraint(Sketcher.Constraint("Vertical", 16, 2, 21, 2))
sketch2.addConstraint(Sketcher.Constraint("Vertical", 10, 2, 24, 2))
sketch2.addConstraint(Sketcher.Constraint("Vertical", 11, 2, 26, 2))
sketch2.addConstraint(Sketcher.Constraint("Vertical", 39, 2, 42, 2))
sketch2.addConstraint(Sketcher.Constraint("Vertical", 40, 2, 45, 2))
sketch2.addConstraint(Sketcher.Constraint("Equal", 21, 37))
sketch2.addConstraint(Sketcher.Constraint("Equal", 45, 0))
sketch2.addConstraint(Sketcher.Constraint("Equal", 10, 25))
sketch2.addConstraint(Sketcher.Constraint("Equal", 11, 12))
sketch2.addConstraint(Sketcher.Constraint("DistanceX", -1, 1, 8, 2, 31.0))
sketch2.addConstraint(Sketcher.Constraint("DistanceY", 19, 2, -1, 1, 31.0))
sketch2.addConstraint(Sketcher.Constraint("Angle", 1, Q("-150.0005 deg")))
sketch2.addConstraint(Sketcher.Constraint("DistanceX", -1, 1, 0, 2, 4.17))
sketch2.addConstraint(Sketcher.Constraint("DistanceX", 13, 1, 13, 2, 4.8152))
sketch2.addConstraint(Sketcher.Constraint("DistanceY", 1, 2, -1, 1, 102.815))
sketch2.addConstraint(Sketcher.Constraint("DistanceX", 14, 2, -1, 1, 62.185))
sketch2.addConstraint(Sketcher.Constraint("DistanceY", -1, 1, 26, 2, 62.185))
sketch2.addConstraint(Sketcher.Constraint("DistanceX", -1, 1, 38, 2, 93.185))
pocket1 = body.newObject("PartDesign::Pocket", "Pocket")
pocket1.Profile = sketch2
pocket1.Length = 3
pocket1.Reversed = True

# Sketch on XZ plane
sketch3 = body.newObject("Sketcher::SketchObject", "Sketch002")
sketch3.AttachmentSupport = (doc.getObject("XZ_Plane"), [""])
sketch3.MapMode = "FlatFace"
sketch3.addGeometry(Part.LineSegment(Vector(29, -78, 0), Vector(31, -78, 0)), False)
sketch3.addGeometry(Part.LineSegment(Vector(31, -78, 0), Vector(31, -82, 0)), False)
sketch3.addGeometry(Part.LineSegment(Vector(31, -82, 0), Vector(29, -82, 0)), False)
sketch3.addGeometry(Part.LineSegment(Vector(29, -82, 0), Vector(29, -78, 0)), False)
sketch3.addConstraint(Sketcher.Constraint("Coincident", 0, 2, 1, 1))
sketch3.addConstraint(Sketcher.Constraint("Coincident", 1, 2, 2, 1))
sketch3.addConstraint(Sketcher.Constraint("Coincident", 2, 2, 3, 1))
sketch3.addConstraint(Sketcher.Constraint("Coincident", 3, 2, 0, 1))
sketch3.addConstraint(Sketcher.Constraint("Horizontal", 0))
sketch3.addConstraint(Sketcher.Constraint("Vertical", 1))
sketch3.addConstraint(Sketcher.Constraint("Horizontal", 2))
sketch3.addConstraint(Sketcher.Constraint("Vertical", 3))
sketch3.addConstraint(Sketcher.Constraint("DistanceX", 0, 1, 0, 2, 2.0))
sketch3.addConstraint(Sketcher.Constraint("DistanceY", 1, 2, 1, 1, 4.0))
sketch3.addConstraint(Sketcher.Constraint("DistanceX", -1, 1, 0, 2, 31.0))
sketch3.addConstraint(Sketcher.Constraint("DistanceY", 0, 2, -1, 1, 78.0))
pocket2 = body.newObject("PartDesign::Pocket", "Pocket001")
pocket2.Profile = sketch3
pocket2.Type = "ThroughAll"
pocket2.Reversed = True

doc.recompute()
